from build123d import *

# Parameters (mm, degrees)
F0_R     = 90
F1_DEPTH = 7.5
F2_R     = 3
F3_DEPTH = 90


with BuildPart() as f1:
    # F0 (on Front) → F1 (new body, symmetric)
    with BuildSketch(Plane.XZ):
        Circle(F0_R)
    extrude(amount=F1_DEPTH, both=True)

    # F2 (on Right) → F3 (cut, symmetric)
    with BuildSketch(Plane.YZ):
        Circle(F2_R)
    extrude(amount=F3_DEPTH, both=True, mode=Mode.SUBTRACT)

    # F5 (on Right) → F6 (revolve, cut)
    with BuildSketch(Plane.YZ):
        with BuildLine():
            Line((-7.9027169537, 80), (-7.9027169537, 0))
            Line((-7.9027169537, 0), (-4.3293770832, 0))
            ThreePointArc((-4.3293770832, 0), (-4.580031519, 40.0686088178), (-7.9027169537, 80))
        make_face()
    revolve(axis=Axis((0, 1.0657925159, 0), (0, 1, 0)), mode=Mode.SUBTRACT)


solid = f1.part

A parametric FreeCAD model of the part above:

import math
import FreeCAD as App
import Part
import Sketcher

doc = App.newDocument("Part")
body = doc.addObject("PartDesign::Body", "Body")

# Sketch on XZ plane
sketch1 = doc.addObject("Sketcher::SketchObject", "Sketch")
body.addObject(sketch1)
sketch1.AttachmentSupport = (doc.XZ_Plane, [""])
sketch1.MapMode = "FlatFace"
sketch1.addGeometry(Part.Circle(App.Vector(0, 0, 0), App.Vector(0, 0, 1), 90), False)
sketch1.addConstraint([
    Sketcher.Constraint("Coincident", 0, 3, -1, 1),
    Sketcher.Constraint("Diameter", 0, 180.0),
])
pad1 = doc.addObject("PartDesign::Pad", "Pad")
body.addObject(pad1)
pad1.Profile = sketch1
pad1.Length = 15
pad1.Midplane = True

# Sketch on YZ plane
sketch2 = doc.addObject("Sketcher::SketchObject", "Sketch001")
body.addObject(sketch2)
sketch2.AttachmentSupport = (doc.YZ_Plane, [""])
sketch2.MapMode = "FlatFace"
sketch2.addGeometry(Part.Circle(App.Vector(0, 0, 0), App.Vector(0, 0, 1), 3), False)
sketch2.addConstraint([
    Sketcher.Constraint("Coincident", 0, 3, -1, 1),
    Sketcher.Constraint("Diameter", 0, 6.0),
])
pocket1 = doc.addObject("PartDesign::Pocket", "Pocket")
body.addObject(pocket1)
pocket1.Profile = sketch2
pocket1.Length = 180
pocket1.Midplane = True

# Sketch on YZ plane
sketch3 = doc.addObject("Sketcher::SketchObject", "Sketch002")
body.addObject(sketch3)
sketch3.AttachmentSupport = (doc.YZ_Plane, [""])
sketch3.MapMode = "FlatFace"
sketch3.addGeometry([
    Part.LineSegment(App.Vector(-7.9, 80, 0), App.Vector(-7.9, 0, 0)),
    Part.LineSegment(App.Vector(-7.9, 0, 0), App.Vector(-4.3, 0, 0)),
    Part.ArcOfCircle(Part.Circle(App.Vector(-526.2, 16.8, 0), App.Vector(0, 0, 1), 522.1), math.radians(-1.84), math.radians(6.96)),
], False)
sketch3.addConstraint([
    Sketcher.Constraint("Coincident", 0, 2, 1, 1),
    Sketcher.Constraint("Coincident", 1, 2, 2, 1),
    Sketcher.Constraint("Coincident", 2, 2, 0, 1),
    Sketcher.Constraint("Vertical", 0),
    Sketcher.Constraint("Horizontal", 1),
    Sketcher.Constraint("PointOnObject", 0, 2, -1),
    Sketcher.Constraint("DistanceY", 0, 2, 0, 1, 80.0),
    Sketcher.Constraint("Radius", 2, 522.116149),
    Sketcher.Constraint("DistanceX", 1, 1, 1, 2, 3.57334),
    Sketcher.Constraint("DistanceX", 2, 3, -1, 1, 526.176117),
])
groove = doc.addObject("PartDesign::Groove", "Groove")
body.addObject(groove)
groove.Profile = sketch3
groove.ReferenceAxis = (sketch3, ["H_Axis"])
groove.Angle = 360

doc.recompute()
